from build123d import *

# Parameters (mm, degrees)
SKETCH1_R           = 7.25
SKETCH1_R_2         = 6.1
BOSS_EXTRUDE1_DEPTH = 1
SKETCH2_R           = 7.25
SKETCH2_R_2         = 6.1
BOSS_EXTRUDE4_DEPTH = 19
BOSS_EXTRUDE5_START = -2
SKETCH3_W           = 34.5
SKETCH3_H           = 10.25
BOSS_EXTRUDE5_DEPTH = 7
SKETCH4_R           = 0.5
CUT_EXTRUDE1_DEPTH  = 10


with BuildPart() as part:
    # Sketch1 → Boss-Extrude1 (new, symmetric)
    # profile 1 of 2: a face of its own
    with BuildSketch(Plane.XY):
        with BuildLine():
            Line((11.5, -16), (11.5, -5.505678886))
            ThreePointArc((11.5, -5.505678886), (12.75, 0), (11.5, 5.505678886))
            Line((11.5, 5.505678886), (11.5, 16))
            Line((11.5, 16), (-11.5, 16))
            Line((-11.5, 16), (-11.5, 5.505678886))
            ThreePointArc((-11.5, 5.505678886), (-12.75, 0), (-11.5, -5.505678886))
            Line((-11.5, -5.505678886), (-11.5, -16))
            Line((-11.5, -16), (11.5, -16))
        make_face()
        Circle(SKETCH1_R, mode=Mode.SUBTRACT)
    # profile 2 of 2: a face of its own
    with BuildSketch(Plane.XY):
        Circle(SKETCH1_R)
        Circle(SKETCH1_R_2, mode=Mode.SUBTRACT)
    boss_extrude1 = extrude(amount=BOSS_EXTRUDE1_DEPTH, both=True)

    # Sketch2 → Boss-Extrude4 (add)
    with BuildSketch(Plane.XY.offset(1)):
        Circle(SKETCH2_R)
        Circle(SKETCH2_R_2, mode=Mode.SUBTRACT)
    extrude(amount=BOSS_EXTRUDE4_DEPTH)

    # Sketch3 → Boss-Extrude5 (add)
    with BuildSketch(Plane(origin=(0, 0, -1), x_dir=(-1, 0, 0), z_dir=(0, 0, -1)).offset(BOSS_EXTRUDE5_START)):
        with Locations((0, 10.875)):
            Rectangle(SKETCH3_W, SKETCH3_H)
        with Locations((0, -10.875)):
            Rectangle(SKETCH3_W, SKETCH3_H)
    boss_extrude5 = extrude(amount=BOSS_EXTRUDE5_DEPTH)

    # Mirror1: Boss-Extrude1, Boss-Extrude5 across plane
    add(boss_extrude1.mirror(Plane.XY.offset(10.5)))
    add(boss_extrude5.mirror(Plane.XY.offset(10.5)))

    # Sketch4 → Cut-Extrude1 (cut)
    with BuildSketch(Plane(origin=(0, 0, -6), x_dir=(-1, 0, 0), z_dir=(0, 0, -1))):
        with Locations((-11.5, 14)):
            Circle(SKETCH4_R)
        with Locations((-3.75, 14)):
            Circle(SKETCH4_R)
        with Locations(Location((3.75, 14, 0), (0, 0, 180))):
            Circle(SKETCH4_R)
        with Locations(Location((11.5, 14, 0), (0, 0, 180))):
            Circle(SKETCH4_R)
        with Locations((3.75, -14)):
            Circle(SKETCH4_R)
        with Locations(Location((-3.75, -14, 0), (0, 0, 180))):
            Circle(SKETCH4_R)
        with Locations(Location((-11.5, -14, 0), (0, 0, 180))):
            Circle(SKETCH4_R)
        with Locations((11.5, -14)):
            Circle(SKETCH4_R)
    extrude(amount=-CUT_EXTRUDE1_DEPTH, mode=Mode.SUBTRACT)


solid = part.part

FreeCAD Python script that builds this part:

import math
import FreeCAD as App
import Part
import Sketcher
Q = App.Units.Quantity

doc = App.newDocument("Part")
body = doc.addObject("PartDesign::Body", "Body")

# Sketch on XY plane
sketch1 = body.newObject("Sketcher::SketchObject", "Sketch")
sketch1.AttachmentSupport = (doc.getObject("XY_Plane"), [""])
sketch1.MapMode = "FlatFace"
sketch1.addGeometry([
    Part.LineSegment(App.Vector(12, -16, 0), App.Vector(12, -6, 0)),  # 0
    Part.ArcOfCircle(Part.Circle(App.Vector(0, 0, 0), App.Vector(0, 0, 1), 13), math.radians(-26), math.radians(26)),  # 1
    Part.LineSegment(App.Vector(12, 6, 0), App.Vector(12, 16, 0)),  # 2
    Part.LineSegment(App.Vector(12, 16, 0), App.Vector(-12, 16, 0)),  # 3
    Part.LineSegment(App.Vector(-12, 16, 0), App.Vector(-12, 6, 0)),  # 4
    Part.ArcOfCircle(Part.Circle(App.Vector(0, 0, 0), App.Vector(0, 0, 1), 13), math.radians(154), math.radians(206)),  # 5
    Part.LineSegment(App.Vector(-12, -6, 0), App.Vector(-12, -16, 0)),  # 6
    Part.LineSegment(App.Vector(-12, -16, 0), App.Vector(12, -16, 0)),  # 7
    Part.Circle(App.Vector(0, 0, 0), App.Vector(0, 0, 1), 6),  # 8
], False)
sketch1.addConstraint([
    Sketcher.Constraint("Coincident", 0, 2, 1, 1),
    Sketcher.Constraint("Coincident", 1, 2, 2, 1),
    Sketcher.Constraint("Coincident", 2, 2, 3, 1),
    Sketcher.Constraint("Coincident", 3, 2, 4, 1),
    Sketcher.Constraint("Coincident", 4, 2, 5, 1),
    Sketcher.Constraint("Coincident", 5, 2, 6, 1),
    Sketcher.Constraint("Coincident", 6, 2, 7, 1),
    Sketcher.Constraint("Coincident", 7, 2, 0, 1),
    Sketcher.Constraint("Vertical", 0),
    Sketcher.Constraint("Vertical", 2),
    Sketcher.Constraint("Horizontal", 3),
    Sketcher.Constraint("Vertical", 4),
    Sketcher.Constraint("Vertical", 6),
    Sketcher.Constraint("Horizontal", 7),
    Sketcher.Constraint("Coincident", 1, 3, -1, 1),
    Sketcher.Constraint("Coincident", 5, 3, -1, 1),
    Sketcher.Constraint("Coincident", 8, 3, -1, 1),
    Sketcher.Constraint("Equal", 1, 5),
    Sketcher.Constraint("Symmetric", 2, 2, 6, 2, -1, 1),
    Sketcher.Constraint("Horizontal", 1, 2, 4, 2),
    Sketcher.Constraint("Horizontal", 0, 2, 5, 2),
    Sketcher.Constraint("Diameter", 8, Q("12.2 mm")),
    Sketcher.Constraint("DistanceX", 3, 2, 3, 1, Q("23 mm")),
    Sketcher.Constraint("Radius", 1, Q("12.75 mm")),
    Sketcher.Constraint("DistanceY", -1, 1, 2, 2, Q("16 mm")),
])
pad1 = body.newObject("PartDesign::Pad", "Pad")
pad1.Profile = sketch1
pad1.Length = 2
pad1.Midplane = True

# Sketch on XY plane
sketch2 = body.newObject("Sketcher::SketchObject", "Sketch001")
sketch2.AttachmentSupport = (doc.getObject("XY_Plane"), [""])
sketch2.MapMode = "FlatFace"
sketch2.AttachmentOffset = App.Placement(App.Vector(0, 0, 1), App.Rotation())
sketch2.addGeometry([
    Part.Circle(App.Vector(0, 0, 0), App.Vector(0, 0, 1), 7),
    Part.Circle(App.Vector(0, 0, 0), App.Vector(0, 0, 1), 6),
], False)
sketch2.addConstraint([
    Sketcher.Constraint("Coincident", 0, 3, -1, 1),
    Sketcher.Constraint("Coincident", 1, 3, -1, 1),
    Sketcher.Constraint("Diameter", 0, Q("14.5 mm")),
    Sketcher.Constraint("Diameter", 1, Q("12.2 mm")),
])
pad2 = body.newObject("PartDesign::Pad", "Pad001")
pad2.Profile = sketch2
pad2.Length = 19

# Sketch on XY plane
sketch3 = body.newObject("Sketcher::SketchObject", "Sketch002")
sketch3.AttachmentSupport = (doc.getObject("XY_Plane"), [""])
sketch3.MapMode = "FlatFace"
sketch3.AttachmentOffset = App.Placement(App.Vector(0, 0, 1), App.Rotation())
sketch3.addGeometry([
    Part.LineSegment(App.Vector(17, 16, 0), App.Vector(17, 6, 0)),  # 0
    Part.LineSegment(App.Vector(17, 6, 0), App.Vector(-17, 6, 0)),  # 1
    Part.LineSegment(App.Vector(-17, 6, 0), App.Vector(-17, 16, 0)),  # 2
    Part.LineSegment(App.Vector(-17, 16, 0), App.Vector(17, 16, 0)),  # 3
    Part.LineSegment(App.Vector(17, -6, 0), App.Vector(17, -16, 0)),  # 4
    Part.LineSegment(App.Vector(17, -16, 0), App.Vector(-17, -16, 0)),  # 5
    Part.LineSegment(App.Vector(-17, -16, 0), App.Vector(-17, -6, 0)),  # 6
    Part.LineSegment(App.Vector(-17, -6, 0), App.Vector(17, -6, 0)),  # 7
], False)
sketch3.addConstraint([
    Sketcher.Constraint("Coincident", 0, 2, 1, 1),
    Sketcher.Constraint("Coincident", 1, 2, 2, 1),
    Sketcher.Constraint("Coincident", 2, 2, 3, 1),
    Sketcher.Constraint("Coincident", 3, 2, 0, 1),
    Sketcher.Constraint("Coincident", 4, 2, 5, 1),
    Sketcher.Constraint("Coincident", 5, 2, 6, 1),
    Sketcher.Constraint("Coincident", 6, 2, 7, 1),
    Sketcher.Constraint("Coincident", 7, 2, 4, 1),
    Sketcher.Constraint("Vertical", 0),
    Sketcher.Constraint("Horizontal", 1),
    Sketcher.Constraint("Vertical", 2),
    Sketcher.Constraint("Horizontal", 3),
    Sketcher.Constraint("Vertical", 4),
    Sketcher.Constraint("Horizontal", 5),
    Sketcher.Constraint("Vertical", 6),
    Sketcher.Constraint("Horizontal", 7),
    Sketcher.Constraint("Symmetric", 2, 2, 4, 2, -1, 1),
    Sketcher.Constraint("Symmetric", 0, 2, 6, 2, -1, 1),
    Sketcher.Constraint("Vertical", 3, 2, 4, 2),
    Sketcher.Constraint("DistanceX", 1, 2, 1, 1, Q("34.5 mm")),
    Sketcher.Constraint("DistanceY", -1, 1, 2, 2, Q("16 mm")),
    Sketcher.Constraint("DistanceY", 0, 2, 0, 1, Q("10.25 mm")),
])
pad3 = body.newObject("PartDesign::Pad", "Pad002")
pad3.Profile = sketch3
pad3.Length = 7
pad3.Reversed = True
doc.recompute()

datumplane = body.newObject("PartDesign::Plane", "DatumPlane")
datumplane.AttachmentSupport = (doc.getObject("XY_Plane"), [""])
datumplane.MapMode = "FlatFace"
datumplane.AttachmentOffset = App.Placement(App.Vector(0, 0, 10.5), App.Rotation())
mirrored = body.newObject("PartDesign::Mirrored", "Mirrored")
mirrored.Originals = [pad1, pad3]
mirrored.MirrorPlane = (datumplane, [""])
body.Tip = mirrored

# Sketch on XY plane
sketch4 = body.newObject("Sketcher::SketchObject", "Sketch003")
sketch4.AttachmentSupport = (doc.getObject("XY_Plane"), [""])
sketch4.MapMode = "FlatFace"
sketch4.AttachmentOffset = App.Placement(App.Vector(0, 0, -6), App.Rotation())
sketch4.addGeometry([
    Part.Circle(App.Vector(11.5, 14, 0), App.Vector(0, 0, 1), 0.5),  # 0
    Part.Circle(App.Vector(3.8, 14, 0), App.Vector(0, 0, 1), 0.5),  # 1
    Part.Circle(App.Vector(-3.8, 14, 0), App.Vector(0, 0, 1), 0.5),  # 2
    Part.Circle(App.Vector(-11.5, 14, 0), App.Vector(0, 0, 1), 0.5),  # 3
    Part.Circle(App.Vector(-3.8, -14, 0), App.Vector(0, 0, 1), 0.5),  # 4
    Part.Circle(App.Vector(3.8, -14, 0), App.Vector(0, 0, 1), 0.5),  # 5
    Part.Circle(App.Vector(11.5, -14, 0), App.Vector(0, 0, 1), 0.5),  # 6
    Part.Circle(App.Vector(-11.5, -14, 0), App.Vector(0, 0, 1), 0.5),  # 7
], False)
sketch4.addConstraint([
    Sketcher.Constraint("Equal", 0, 1),
    Sketcher.Constraint("Equal", 1, 2),
    Sketcher.Constraint("Equal", 2, 3),
    Sketcher.Constraint("Equal", 3, 4),
    Sketcher.Constraint("Equal", 4, 5),
    Sketcher.Constraint("Equal", 5, 6),
    Sketcher.Constraint("Equal", 6, 7),
    Sketcher.Constraint("Symmetric", 1, 3, 4, 3, -1, 1),
    Sketcher.Constraint("Symmetric", 2, 3, 5, 3, -1, 1),
    Sketcher.Constraint("Symmetric", 3, 3, 6, 3, -1, 1),
    Sketcher.Constraint("Symmetric", 0, 3, 7, 3, -1, 1),
    Sketcher.Constraint("Symmetric", 1, 3, 2, 3, -2),
    Sketcher.Constraint("Symmetric", 0, 3, 3, 3, -2),
    Sketcher.Constraint("Horizontal", 0, 3, 1, 3),
    Sketcher.Constraint("Diameter", 0, Q("1 mm")),
    Sketcher.Constraint("DistanceY", -1, 1, 0, 3, Q("14 mm")),
    Sketcher.Constraint("DistanceX", 3, 3, 0, 3, Q("23 mm")),
    Sketcher.Constraint("DistanceX", 2, 3, 1, 3, Q("7.5 mm")),
])
pocket1 = body.newObject("PartDesign::Pocket", "Pocket")
pocket1.Profile = sketch4
pocket1.Length = 10
pocket1.Reversed = True

doc.recompute()
